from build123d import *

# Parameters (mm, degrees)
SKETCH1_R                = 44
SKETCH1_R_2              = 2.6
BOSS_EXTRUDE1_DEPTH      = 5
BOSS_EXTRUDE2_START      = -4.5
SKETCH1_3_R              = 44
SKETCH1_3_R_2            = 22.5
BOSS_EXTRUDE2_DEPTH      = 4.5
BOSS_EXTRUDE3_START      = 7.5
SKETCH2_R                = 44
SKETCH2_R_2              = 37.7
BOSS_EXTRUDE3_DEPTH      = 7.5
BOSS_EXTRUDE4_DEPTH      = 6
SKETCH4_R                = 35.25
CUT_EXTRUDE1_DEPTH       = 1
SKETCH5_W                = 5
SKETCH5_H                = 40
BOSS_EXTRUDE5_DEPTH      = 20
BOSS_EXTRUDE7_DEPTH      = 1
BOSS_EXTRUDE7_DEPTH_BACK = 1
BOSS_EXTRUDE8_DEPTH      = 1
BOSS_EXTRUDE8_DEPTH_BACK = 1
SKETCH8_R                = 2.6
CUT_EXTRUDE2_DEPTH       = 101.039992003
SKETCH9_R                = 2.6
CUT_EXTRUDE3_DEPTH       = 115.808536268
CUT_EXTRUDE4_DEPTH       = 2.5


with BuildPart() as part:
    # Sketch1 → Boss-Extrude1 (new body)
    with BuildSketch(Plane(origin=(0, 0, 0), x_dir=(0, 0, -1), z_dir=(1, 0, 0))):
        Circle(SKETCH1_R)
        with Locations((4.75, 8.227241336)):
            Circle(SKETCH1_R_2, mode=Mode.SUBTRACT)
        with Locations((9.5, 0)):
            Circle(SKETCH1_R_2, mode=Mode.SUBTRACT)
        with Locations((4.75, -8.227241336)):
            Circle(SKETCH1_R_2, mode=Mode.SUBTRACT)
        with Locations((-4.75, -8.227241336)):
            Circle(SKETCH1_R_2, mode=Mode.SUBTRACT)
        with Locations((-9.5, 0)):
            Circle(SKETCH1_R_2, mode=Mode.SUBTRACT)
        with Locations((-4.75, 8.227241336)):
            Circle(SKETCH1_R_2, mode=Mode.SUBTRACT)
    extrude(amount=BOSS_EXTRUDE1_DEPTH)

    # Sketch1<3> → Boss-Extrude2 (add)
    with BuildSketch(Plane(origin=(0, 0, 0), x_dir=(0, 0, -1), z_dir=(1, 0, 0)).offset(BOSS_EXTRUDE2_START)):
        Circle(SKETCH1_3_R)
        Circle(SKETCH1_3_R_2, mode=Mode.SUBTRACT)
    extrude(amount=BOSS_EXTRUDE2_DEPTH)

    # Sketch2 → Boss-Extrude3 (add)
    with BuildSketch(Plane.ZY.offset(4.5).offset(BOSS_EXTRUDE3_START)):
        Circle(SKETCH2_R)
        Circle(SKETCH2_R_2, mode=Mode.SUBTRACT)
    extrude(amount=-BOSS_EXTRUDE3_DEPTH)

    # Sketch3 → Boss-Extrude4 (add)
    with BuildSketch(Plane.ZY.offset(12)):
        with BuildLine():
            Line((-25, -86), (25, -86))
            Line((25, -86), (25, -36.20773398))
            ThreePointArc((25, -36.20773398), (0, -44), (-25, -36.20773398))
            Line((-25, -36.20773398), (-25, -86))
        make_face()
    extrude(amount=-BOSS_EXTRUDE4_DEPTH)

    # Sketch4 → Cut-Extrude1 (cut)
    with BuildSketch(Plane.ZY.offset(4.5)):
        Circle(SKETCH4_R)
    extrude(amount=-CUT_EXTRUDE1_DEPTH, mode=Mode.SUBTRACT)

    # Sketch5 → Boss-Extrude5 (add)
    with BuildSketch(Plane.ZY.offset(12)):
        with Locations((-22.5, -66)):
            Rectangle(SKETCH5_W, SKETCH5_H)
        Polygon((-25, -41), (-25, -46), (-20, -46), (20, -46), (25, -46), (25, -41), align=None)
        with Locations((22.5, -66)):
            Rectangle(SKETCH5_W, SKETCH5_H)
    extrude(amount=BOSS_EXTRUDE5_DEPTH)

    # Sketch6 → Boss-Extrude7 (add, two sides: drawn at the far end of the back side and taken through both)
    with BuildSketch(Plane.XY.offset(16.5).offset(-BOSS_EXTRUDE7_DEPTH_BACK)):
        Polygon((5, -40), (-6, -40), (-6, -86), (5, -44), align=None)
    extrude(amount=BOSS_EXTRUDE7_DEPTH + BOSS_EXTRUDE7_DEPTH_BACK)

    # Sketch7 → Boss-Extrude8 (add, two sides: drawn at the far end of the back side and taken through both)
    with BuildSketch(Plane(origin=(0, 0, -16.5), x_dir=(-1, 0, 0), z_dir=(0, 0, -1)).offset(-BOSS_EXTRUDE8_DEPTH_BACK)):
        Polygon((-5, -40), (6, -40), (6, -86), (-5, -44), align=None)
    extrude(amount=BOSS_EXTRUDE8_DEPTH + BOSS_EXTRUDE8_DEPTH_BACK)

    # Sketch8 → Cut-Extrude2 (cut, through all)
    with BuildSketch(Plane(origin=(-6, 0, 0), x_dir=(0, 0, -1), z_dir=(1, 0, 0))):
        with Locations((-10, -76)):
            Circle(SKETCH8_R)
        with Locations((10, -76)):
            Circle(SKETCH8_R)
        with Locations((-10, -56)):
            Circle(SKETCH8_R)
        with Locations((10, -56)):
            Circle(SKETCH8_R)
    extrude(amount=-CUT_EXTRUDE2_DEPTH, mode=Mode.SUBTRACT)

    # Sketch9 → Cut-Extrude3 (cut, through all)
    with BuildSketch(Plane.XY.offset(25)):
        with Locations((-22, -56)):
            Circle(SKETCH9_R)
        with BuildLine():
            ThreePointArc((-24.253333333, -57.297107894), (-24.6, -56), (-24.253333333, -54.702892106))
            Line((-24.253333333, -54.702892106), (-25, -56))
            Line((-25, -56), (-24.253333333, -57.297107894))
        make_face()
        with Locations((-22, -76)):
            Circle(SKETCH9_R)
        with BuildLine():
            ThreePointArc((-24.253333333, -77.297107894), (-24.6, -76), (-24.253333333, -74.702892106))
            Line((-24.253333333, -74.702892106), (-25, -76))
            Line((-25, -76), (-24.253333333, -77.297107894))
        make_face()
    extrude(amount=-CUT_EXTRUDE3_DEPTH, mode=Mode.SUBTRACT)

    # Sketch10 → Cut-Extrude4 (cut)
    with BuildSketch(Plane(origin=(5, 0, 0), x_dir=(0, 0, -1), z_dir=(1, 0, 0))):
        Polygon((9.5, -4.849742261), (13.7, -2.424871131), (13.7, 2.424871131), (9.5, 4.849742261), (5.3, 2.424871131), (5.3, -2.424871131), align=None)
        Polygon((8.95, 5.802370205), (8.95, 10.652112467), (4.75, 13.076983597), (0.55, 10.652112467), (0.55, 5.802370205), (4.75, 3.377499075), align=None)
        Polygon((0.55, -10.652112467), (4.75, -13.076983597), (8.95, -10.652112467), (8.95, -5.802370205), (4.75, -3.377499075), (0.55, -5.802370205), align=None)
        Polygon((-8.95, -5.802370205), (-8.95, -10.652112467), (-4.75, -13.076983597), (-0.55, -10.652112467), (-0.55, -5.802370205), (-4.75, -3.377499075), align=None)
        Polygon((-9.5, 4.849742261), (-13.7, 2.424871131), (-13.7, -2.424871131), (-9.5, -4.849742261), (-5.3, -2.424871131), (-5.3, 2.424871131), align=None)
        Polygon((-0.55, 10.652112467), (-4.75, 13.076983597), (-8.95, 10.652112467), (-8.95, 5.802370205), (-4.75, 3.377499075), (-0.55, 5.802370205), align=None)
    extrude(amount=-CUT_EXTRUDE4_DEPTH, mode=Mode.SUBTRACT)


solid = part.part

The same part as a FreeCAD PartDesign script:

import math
import FreeCAD as App
import Part
import Sketcher

V = App.Vector
Q = App.Units.Quantity

doc = App.newDocument("Part")
params = doc.addObject("Spreadsheet::Sheet", "Params")
for row, (alias, value) in enumerate([
    ("sketch1_diameter", "88 mm"),
    ("sketch1_diameter2", "5.2 mm"),
    ("pad1_length", "5 mm"),
    ("sketch2_diameter", "88 mm"),
    ("sketch2_diameter2", "45 mm"),
    ("pad2_length", "4.5 mm"),
    ("sketch3_diameter", "88 mm"),
    ("sketch3_diameter2", "75.4 mm"),
    ("pad3_length", "7.5 mm"),
    ("sketch4_radius", "44 mm"),
    ("sketch4_height", "50 mm"),
    ("pad4_length", "6 mm"),
    ("sketch5_diameter", "70.5 mm"),
    ("pocket1_length", "1 mm"),
    ("sketch6_width", "40 mm"),
    ("sketch6_width2", "45 mm"),
    ("sketch6_height", "5 mm"),
    ("pad5_length", "20 mm"),
    ("sketch7_width", "11 mm"),
    ("sketch7_height", "46 mm"),
    ("sketch7_height2", "4 mm"),
    ("pad6_length", "1 mm"),
    ("pad6_length2", "1 mm"),
    ("sketch8_width", "11 mm"),
    ("sketch8_height", "4 mm"),
    ("sketch8_height2", "46 mm"),
    ("pad7_length", "1 mm"),
    ("pad7_length2", "1 mm"),
    ("sketch9_diameter", "5.2 mm"),
    ("sketch10_radius", "2.6 mm"),
    ("pocket4_length", "2.5 mm"),
], start=1):
    params.set(f"A{row}", alias)
    params.set(f"B{row}", "=" + value)
    params.setAlias(f"B{row}", alias)

body = doc.addObject("PartDesign::Body", "Body")

sketch1 = body.newObject("Sketcher::SketchObject", "Sketch")
sketch1.AttachmentSupport = (doc.getObject("YZ_Plane"), [""])
sketch1.MapMode = "FlatFace"
sketch1.addGeometry(Part.Circle(V(0, 0, 0), V(0, 0, 1), 44), False)
sketch1.addGeometry(Part.Circle(V(-8.2, 4.8, 0), V(0, 0, 1), 2.6), False)
sketch1.addGeometry(Part.Circle(V(-8.2, -4.8, 0), V(0, 0, 1), 2.6), False)
sketch1.addGeometry(Part.Circle(V(0, 9.5, 0), V(0, 0, 1), 2.6), False)
sketch1.addGeometry(Part.Circle(V(8.2, 4.8, 0), V(0, 0, 1), 2.6), False)
sketch1.addGeometry(Part.Circle(V(0, -9.5, 0), V(0, 0, 1), 2.6), False)
sketch1.addGeometry(Part.Circle(V(8.2, -4.8, 0), V(0, 0, 1), 2.6), False)
sketch1.addConstraint(Sketcher.Constraint("Coincident", 0, 3, -1, 1))
sketch1.addConstraint(Sketcher.Constraint("Equal", 1, 2))
sketch1.addConstraint(Sketcher.Constraint("Equal", 2, 3))
sketch1.addConstraint(Sketcher.Constraint("Equal", 3, 4))
sketch1.addConstraint(Sketcher.Constraint("Equal", 4, 5))
sketch1.addConstraint(Sketcher.Constraint("Equal", 5, 6))
sketch1.addConstraint(Sketcher.Constraint("Symmetric", 2, 3, 4, 3, -1, 1))
sketch1.addConstraint(Sketcher.Constraint("Symmetric", 3, 3, 5, 3, -1, 1))
sketch1.addConstraint(Sketcher.Constraint("Symmetric", 1, 3, 6, 3, -1, 1))
sketch1.addConstraint(Sketcher.Constraint("Symmetric", 1, 3, 4, 3, -2))
sketch1.addConstraint(Sketcher.Constraint("PointOnObject", 3, 3, -2))
sketch1.addConstraint(Sketcher.Constraint("Diameter", 0, 88.0))
sketch1.addConstraint(Sketcher.Constraint("Diameter", 1, 5.2))
sketch1.addConstraint(Sketcher.Constraint("DistanceY", 5, 3, 3, 3, 19.0))
sketch1.addConstraint(Sketcher.Constraint("DistanceY", 2, 3, 1, 3, 9.5))
sketch1.addConstraint(Sketcher.Constraint("DistanceX", 1, 3, -1, 1, 8.227241))
sketch1.setExpression("Constraints[11]", "Params.sketch1_diameter")
sketch1.setExpression("Constraints[12]", "Params.sketch1_diameter2")
pad1 = body.newObject("PartDesign::Pad", "Pad")
pad1.Profile = sketch1
pad1.setExpression("Length", "Params.pad1_length")

sketch2 = body.newObject("Sketcher::SketchObject", "Sketch001")
sketch2.AttachmentSupport = (doc.getObject("YZ_Plane"), [""])
sketch2.MapMode = "FlatFace"
sketch2.AttachmentOffset = App.Placement(V(0, 0, -4.5), App.Rotation())
sketch2.addGeometry(Part.Circle(V(0, 0, 0), V(0, 0, 1), 44), False)
sketch2.addGeometry(Part.Circle(V(0, 0, 0), V(0, 0, 1), 22), False)
sketch2.addConstraint(Sketcher.Constraint("Coincident", 0, 3, -1, 1))
sketch2.addConstraint(Sketcher.Constraint("Coincident", 1, 3, -1, 1))
sketch2.addConstraint(Sketcher.Constraint("Diameter", 0, 88.0))
sketch2.addConstraint(Sketcher.Constraint("Diameter", 1, 45.0))
sketch2.setExpression("Constraints[2]", "Params.sketch2_diameter")
sketch2.setExpression("Constraints[3]", "Params.sketch2_diameter2")
pad2 = body.newObject("PartDesign::Pad", "Pad001")
pad2.Profile = sketch2
pad2.setExpression("Length", "Params.pad2_length")

sketch3 = body.newObject("Sketcher::SketchObject", "Sketch002")
sketch3.AttachmentSupport = (doc.getObject("YZ_Plane"), [""])
sketch3.MapMode = "FlatFace"
sketch3.AttachmentOffset = App.Placement(V(0, 0, -12), App.Rotation())
sketch3.addGeometry(Part.Circle(V(0, 0, 0), V(0, 0, 1), 44), False)
sketch3.addGeometry(Part.Circle(V(0, 0, 0), V(0, 0, 1), 38), False)
sketch3.addConstraint(Sketcher.Constraint("Coincident", 0, 3, -1, 1))
sketch3.addConstraint(Sketcher.Constraint("Coincident", 1, 3, -1, 1))
sketch3.addConstraint(Sketcher.Constraint("Diameter", 0, 88.0))
sketch3.addConstraint(Sketcher.Constraint("Diameter", 1, 75.4))
sketch3.setExpression("Constraints[2]", "Params.sketch3_diameter")
sketch3.setExpression("Constraints[3]", "Params.sketch3_diameter2")
pad3 = body.newObject("PartDesign::Pad", "Pad002")
pad3.Profile = sketch3
pad3.setExpression("Length", "Params.pad3_length")

sketch4 = body.newObject("Sketcher::SketchObject", "Sketch003")
sketch4.AttachmentSupport = (doc.getObject("YZ_Plane"), [""])
sketch4.MapMode = "FlatFace"
sketch4.AttachmentOffset = App.Placement(V(0, 0, -12), App.Rotation())
sketch4.addGeometry(Part.LineSegment(V(-86, -25, 0), V(-86, 25, 0)), False)
sketch4.addGeometry(Part.LineSegment(V(-86, 25, 0), V(-36, 25, 0)), False)
sketch4.addGeometry(Part.ArcOfCircle(Part.Circle(V(0, 0, 0), V(0, 0, 1), 44), math.radians(145), math.radians(215)), False)
sketch4.addGeometry(Part.LineSegment(V(-36, -25, 0), V(-86, -25, 0)), False)
sketch4.addConstraint(Sketcher.Constraint("Coincident", 0, 2, 1, 1))
sketch4.addConstraint(Sketcher.Constraint("Coincident", 1, 2, 2, 1))
sketch4.addConstraint(Sketcher.Constraint("Coincident", 2, 2, 3, 1))
sketch4.addConstraint(Sketcher.Constraint("Coincident", 3, 2, 0, 1))
sketch4.addConstraint(Sketcher.Constraint("Vertical", 0))
sketch4.addConstraint(Sketcher.Constraint("Horizontal", 1))
sketch4.addConstraint(Sketcher.Constraint("Horizontal", 3))
sketch4.addConstraint(Sketcher.Constraint("Coincident", 2, 3, -1, 1))
sketch4.addConstraint(Sketcher.Constraint("Vertical", 1, 2, 2, 2))
sketch4.addConstraint(Sketcher.Constraint("Radius", 2, 44.0))
sketch4.addConstraint(Sketcher.Constraint("DistanceY", 0, 1, 0, 2, 50.0))
sketch4.addConstraint(Sketcher.Constraint("DistanceX", 0, 2, -1, 1, 86.0))
sketch4.setExpression("Constraints[9]", "Params.sketch4_radius")
sketch4.setExpression("Constraints[10]", "Params.sketch4_height")
pad4 = body.newObject("PartDesign::Pad", "Pad003")
pad4.Profile = sketch4
pad4.setExpression("Length", "Params.pad4_length")

sketch5 = body.newObject("Sketcher::SketchObject", "Sketch004")
sketch5.AttachmentSupport = (doc.getObject("YZ_Plane"), [""])
sketch5.MapMode = "FlatFace"
sketch5.AttachmentOffset = App.Placement(V(0, 0, -4.5), App.Rotation())
sketch5.addGeometry(Part.Circle(V(0, 0, 0), V(0, 0, 1), 35), False)
sketch5.addConstraint(Sketcher.Constraint("Coincident", 0, 3, -1, 1))
sketch5.addConstraint(Sketcher.Constraint("Diameter", 0, 70.5))
sketch5.setExpression("Constraints[1]", "Params.sketch5_diameter")
pocket1 = body.newObject("PartDesign::Pocket", "Pocket")
pocket1.Profile = sketch5
pocket1.setExpression("Length", "Params.pocket1_length")
pocket1.Reversed = True

sketch6 = body.newObject("Sketcher::SketchObject", "Sketch005")
sketch6.AttachmentSupport = (doc.getObject("YZ_Plane"), [""])
sketch6.MapMode = "FlatFace"
sketch6.AttachmentOffset = App.Placement(V(0, 0, -12), App.Rotation())
sketch6.addGeometry(Part.LineSegment(V(-86, -25, 0), V(-86, -20, 0)), False)
sketch6.addGeometry(Part.LineSegment(V(-86, -20, 0), V(-46, -20, 0)), False)
sketch6.addGeometry(Part.LineSegment(V(-46, -20, 0), V(-46, 20, 0)), False)
sketch6.addGeometry(Part.LineSegment(V(-46, 20, 0), V(-86, 20, 0)), False)
sketch6.addGeometry(Part.LineSegment(V(-86, 20, 0), V(-86, 25, 0)), False)
sketch6.addGeometry(Part.LineSegment(V(-86, 25, 0), V(-41, 25, 0)), False)
sketch6.addGeometry(Part.LineSegment(V(-41, 25, 0), V(-41, -25, 0)), False)
sketch6.addGeometry(Part.LineSegment(V(-41, -25, 0), V(-86, -25, 0)), False)
sketch6.addConstraint(Sketcher.Constraint("Coincident", 0, 2, 1, 1))
sketch6.addConstraint(Sketcher.Constraint("Coincident", 1, 2, 2, 1))
sketch6.addConstraint(Sketcher.Constraint("Coincident", 2, 2, 3, 1))
sketch6.addConstraint(Sketcher.Constraint("Coincident", 3, 2, 4, 1))
sketch6.addConstraint(Sketcher.Constraint("Coincident", 4, 2, 5, 1))
sketch6.addConstraint(Sketcher.Constraint("Coincident", 5, 2, 6, 1))
sketch6.addConstraint(Sketcher.Constraint("Coincident", 6, 2, 7, 1))
sketch6.addConstraint(Sketcher.Constraint("Coincident", 7, 2, 0, 1))
sketch6.addConstraint(Sketcher.Constraint("Vertical", 0))
sketch6.addConstraint(Sketcher.Constraint("Horizontal", 1))
sketch6.addConstraint(Sketcher.Constraint("Vertical", 2))
sketch6.addConstraint(Sketcher.Constraint("Horizontal", 3))
sketch6.addConstraint(Sketcher.Constraint("Vertical", 4))
sketch6.addConstraint(Sketcher.Constraint("Horizontal", 5))
sketch6.addConstraint(Sketcher.Constraint("Vertical", 6))
sketch6.addConstraint(Sketcher.Constraint("Horizontal", 7))
sketch6.addConstraint(Sketcher.Constraint("Symmetric", 0, 2, 3, 2, -1))
sketch6.addConstraint(Sketcher.Constraint("Equal", 3, 2))
sketch6.addConstraint(Sketcher.Constraint("Equal", 0, 4))
sketch6.addConstraint(Sketcher.Constraint("DistanceX", 1, 1, 1, 2, 40.0))
sketch6.addConstraint(Sketcher.Constraint("DistanceX", 5, 1, 5, 2, 45.0))
sketch6.addConstraint(Sketcher.Constraint("DistanceY", 0, 1, 0, 2, 5.0))
sketch6.addConstraint(Sketcher.Constraint("DistanceX", 0, 2, -1, 1, 86.0))
sketch6.setExpression("Constraints[19]", "Params.sketch6_width")
sketch6.setExpression("Constraints[20]", "Params.sketch6_width2")
sketch6.setExpression("Constraints[21]", "Params.sketch6_height")
pad5 = body.newObject("PartDesign::Pad", "Pad004")
pad5.Profile = sketch6
pad5.setExpression("Length", "Params.pad5_length")
pad5.Reversed = True

sketch7 = body.newObject("Sketcher::SketchObject", "Sketch006")
sketch7.AttachmentSupport = (doc.getObject("XY_Plane"), [""])
sketch7.MapMode = "FlatFace"
sketch7.AttachmentOffset = App.Placement(V(0, 0, 16.5), App.Rotation())
sketch7.addGeometry(Part.LineSegment(V(5, -40, 0), V(-6, -40, 0)), False)
sketch7.addGeometry(Part.LineSegment(V(-6, -40, 0), V(-6, -86, 0)), False)
sketch7.addGeometry(Part.LineSegment(V(-6, -86, 0), V(5, -44, 0)), False)
sketch7.addGeometry(Part.LineSegment(V(5, -44, 0), V(5, -40, 0)), False)
sketch7.addConstraint(Sketcher.Constraint("Coincident", 0, 2, 1, 1))
sketch7.addConstraint(Sketcher.Constraint("Coincident", 1, 2, 2, 1))
sketch7.addConstraint(Sketcher.Constraint("Coincident", 2, 2, 3, 1))
sketch7.addConstraint(Sketcher.Constraint("Coincident", 3, 2, 0, 1))
sketch7.addConstraint(Sketcher.Constraint("Horizontal", 0))
sketch7.addConstraint(Sketcher.Constraint("Vertical", 1))
sketch7.addConstraint(Sketcher.Constraint("Vertical", 3))
sketch7.addConstraint(Sketcher.Constraint("DistanceX", 0, 2, 0, 1, 11.0))
sketch7.addConstraint(Sketcher.Constraint("DistanceY", 1, 2, 1, 1, 46.0))
sketch7.addConstraint(Sketcher.Constraint("DistanceY", 3, 1, 3, 2, 4.0))
sketch7.addConstraint(Sketcher.Constraint("DistanceX", 0, 2, -1, 1, 6.0))
sketch7.addConstraint(Sketcher.Constraint("DistanceY", 0, 2, -1, 1, 40.0))
sketch7.setExpression("Constraints[7]", "Params.sketch7_width")
sketch7.setExpression("Constraints[8]", "Params.sketch7_height")
sketch7.setExpression("Constraints[9]", "Params.sketch7_height2")
pad6 = body.newObject("PartDesign::Pad", "Pad005")
pad6.Profile = sketch7
pad6.Type = "TwoLengths"
pad6.setExpression("Length", "Params.pad6_length")
pad6.setExpression("Length2", "Params.pad6_length2")

sketch8 = body.newObject("Sketcher::SketchObject", "Sketch007")
sketch8.AttachmentSupport = (doc.getObject("XY_Plane"), [""])
sketch8.MapMode = "FlatFace"
sketch8.AttachmentOffset = App.Placement(V(0, 0, -16.5), App.Rotation())
sketch8.addGeometry(Part.LineSegment(V(-6, -40, 0), V(5, -40, 0)), False)
sketch8.addGeometry(Part.LineSegment(V(5, -40, 0), V(5, -44, 0)), False)
sketch8.addGeometry(Part.LineSegment(V(5, -44, 0), V(-6, -86, 0)), False)
sketch8.addGeometry(Part.LineSegment(V(-6, -86, 0), V(-6, -40, 0)), False)
sketch8.addConstraint(Sketcher.Constraint("Coincident", 0, 2, 1, 1))
sketch8.addConstraint(Sketcher.Constraint("Coincident", 1, 2, 2, 1))
sketch8.addConstraint(Sketcher.Constraint("Coincident", 2, 2, 3, 1))
sketch8.addConstraint(Sketcher.Constraint("Coincident", 3, 2, 0, 1))
sketch8.addConstraint(Sketcher.Constraint("Horizontal", 0))
sketch8.addConstraint(Sketcher.Constraint("Vertical", 1))
sketch8.addConstraint(Sketcher.Constraint("Vertical", 3))
sketch8.addConstraint(Sketcher.Constraint("DistanceX", 0, 1, 0, 2, 11.0))
sketch8.addConstraint(Sketcher.Constraint("DistanceY", 1, 2, 1, 1, 4.0))
sketch8.addConstraint(Sketcher.Constraint("DistanceY", 3, 1, 3, 2, 46.0))
sketch8.addConstraint(Sketcher.Constraint("DistanceX", -1, 1, 0, 2, 5.0))
sketch8.addConstraint(Sketcher.Constraint("DistanceY", 0, 2, -1, 1, 40.0))
sketch8.setExpression("Constraints[7]", "Params.sketch8_width")
sketch8.setExpression("Constraints[8]", "Params.sketch8_height")
sketch8.setExpression("Constraints[9]", "Params.sketch8_height2")
pad7 = body.newObject("PartDesign::Pad", "Pad006")
pad7.Profile = sketch8
pad7.Type = "TwoLengths"
pad7.setExpression("Length", "Params.pad7_length")
pad7.setExpression("Length2", "Params.pad7_length2")
pad7.Reversed = True

sketch9 = body.newObject("Sketcher::SketchObject", "Sketch008")
sketch9.AttachmentSupport = (doc.getObject("YZ_Plane"), [""])
sketch9.MapMode = "FlatFace"
sketch9.AttachmentOffset = App.Placement(V(0, 0, -6), App.Rotation())
sketch9.addGeometry(Part.Circle(V(-76, 10, 0), V(0, 0, 1), 2.6), False)
sketch9.addGeometry(Part.Circle(V(-76, -10, 0), V(0, 0, 1), 2.6), False)
sketch9.addGeometry(Part.Circle(V(-56, 10, 0), V(0, 0, 1), 2.6), False)
sketch9.addGeometry(Part.Circle(V(-56, -10, 0), V(0, 0, 1), 2.6), False)
sketch9.addConstraint(Sketcher.Constraint("Equal", 0, 1))
sketch9.addConstraint(Sketcher.Constraint("Equal", 1, 2))
sketch9.addConstraint(Sketcher.Constraint("Equal", 2, 3))
sketch9.addConstraint(Sketcher.Constraint("Symmetric", 0, 3, 1, 3, -1))
sketch9.addConstraint(Sketcher.Constraint("Symmetric", 2, 3, 3, 3, -1))
sketch9.addConstraint(Sketcher.Constraint("Horizontal", 0, 3, 2, 3))
sketch9.addConstraint(Sketcher.Constraint("Diameter", 0, 5.2))
sketch9.addConstraint(Sketcher.Constraint("DistanceX", 0, 3, -1, 1, 76.0))
sketch9.addConstraint(Sketcher.Constraint("DistanceY", -1, 1, 0, 3, 10.0))
sketch9.addConstraint(Sketcher.Constraint("DistanceX", 2, 3, -1, 1, 56.0))
sketch9.setExpression("Constraints[6]", "Params.sketch9_diameter")
pocket2 = body.newObject("PartDesign::Pocket", "Pocket001")
pocket2.Profile = sketch9
pocket2.Type = "ThroughAll"

sketch10 = body.newObject("Sketcher::SketchObject", "Sketch009")
sketch10.AttachmentSupport = (doc.getObject("XY_Plane"), [""])
sketch10.MapMode = "FlatFace"
sketch10.AttachmentOffset = App.Placement(V(0, 0, 25), App.Rotation())
sketch10.addGeometry(Part.LineSegment(V(-24.3, -54.7, 0), V(-25, -56, 0)), False)
sketch10.addGeometry(Part.LineSegment(V(-25, -56, 0), V(-24.3, -57.3, 0)), False)
sketch10.addGeometry(Part.ArcOfCircle(Part.Circle(V(-22, -56, 0), V(0, 0, 1), 2.6), math.radians(-150), math.radians(150)), False)
sketch10.addGeometry(Part.LineSegment(V(-24.3, -74.7, 0), V(-25, -76, 0)), False)
sketch10.addGeometry(Part.LineSegment(V(-25, -76, 0), V(-24.3, -77.3, 0)), False)
sketch10.addGeometry(Part.ArcOfCircle(Part.Circle(V(-22, -76, 0), V(0, 0, 1), 2.6), math.radians(-150), math.radians(150)), False)
sketch10.addConstraint(Sketcher.Constraint("Coincident", 0, 2, 1, 1))
sketch10.addConstraint(Sketcher.Constraint("Tangent", 1, 2, 2, 1))
sketch10.addConstraint(Sketcher.Constraint("Tangent", 2, 2, 0, 1))
sketch10.addConstraint(Sketcher.Constraint("Coincident", 3, 2, 4, 1))
sketch10.addConstraint(Sketcher.Constraint("Tangent", 4, 2, 5, 1))
sketch10.addConstraint(Sketcher.Constraint("Tangent", 5, 2, 3, 1))
sketch10.addConstraint(Sketcher.Constraint("Equal", 2, 5))
sketch10.addConstraint(Sketcher.Constraint("Parallel", 0, 3))
sketch10.addConstraint(Sketcher.Constraint("Parallel", 1, 4))
sketch10.addConstraint(Sketcher.Constraint("Horizontal", 2, 3, 0, 2))
sketch10.addConstraint(Sketcher.Constraint("Vertical", 2, 3, 5, 3))
sketch10.addConstraint(Sketcher.Constraint("Radius", 2, 2.6))
sketch10.addConstraint(Sketcher.Constraint("DistanceX", 2, 3, -1, 1, 22.0))
sketch10.addConstraint(Sketcher.Constraint("DistanceY", 2, 3, -1, 1, 56.0))
sketch10.addConstraint(Sketcher.Constraint("DistanceY", 5, 3, -1, 1, 76.0))
sketch10.addConstraint(Sketcher.Constraint("DistanceX", 0, 2, -1, 1, 25.0))
sketch10.setExpression("Constraints[11]", "Params.sketch10_radius")
pocket3 = body.newObject("PartDesign::Pocket", "Pocket002")
pocket3.Profile = sketch10
pocket3.Type = "ThroughAll"

sketch11 = body.newObject("Sketcher::SketchObject", "Sketch010")
sketch11.AttachmentSupport = (doc.getObject("YZ_Plane"), [""])
sketch11.MapMode = "FlatFace"
sketch11.AttachmentOffset = App.Placement(V(0, 0, 5), App.Rotation())
sketch11.addGeometry(Part.LineSegment(V(-4.8, -9.5, 0), V(-2.4, -13.7, 0)), False)
sketch11.addGeometry(Part.LineSegment(V(-2.4, -13.7, 0), V(2.4, -13.7, 0)), False)
sketch11.addGeometry(Part.LineSegment(V(2.4, -13.7, 0), V(4.8, -9.5, 0)), False)
sketch11.addGeometry(Part.LineSegment(V(4.8, -9.5, 0), V(2.4, -5.3, 0)), False)
sketch11.addGeometry(Part.LineSegment(V(2.4, -5.3, 0), V(-2.4, -5.3, 0)), False)
sketch11.addGeometry(Part.LineSegment(V(-2.4, -5.3, 0), V(-4.8, -9.5, 0)), False)
sketch11.addGeometry(Part.LineSegment(V(5.8, -8.9, 0), V(10.7, -8.9, 0)), False)
sketch11.addGeometry(Part.LineSegment(V(10.7, -8.9, 0), V(13.1, -4.8, 0)), False)
sketch11.addGeometry(Part.LineSegment(V(13.1, -4.8, 0), V(10.7, -0.6, 0)), False)
sketch11.addGeometry(Part.LineSegment(V(10.7, -0.6, 0), V(5.8, -0.6, 0)), False)
sketch11.addGeometry(Part.LineSegment(V(5.8, -0.6, 0), V(3.4, -4.8, 0)), False)
sketch11.addGeometry(Part.LineSegment(V(3.4, -4.8, 0), V(5.8, -8.9, 0)), False)
sketch11.addGeometry(Part.LineSegment(V(-10.7, -0.6, 0), V(-13.1, -4.8, 0)), False)
sketch11.addGeometry(Part.LineSegment(V(-13.1, -4.8, 0), V(-10.7, -8.9, 0)), False)
sketch11.addGeometry(Part.LineSegment(V(-10.7, -8.9, 0), V(-5.8, -8.9, 0)), False)
sketch11.addGeometry(Part.LineSegment(V(-5.8, -8.9, 0), V(-3.4, -4.8, 0)), False)
sketch11.addGeometry(Part.LineSegment(V(-3.4, -4.8, 0), V(-5.8, -0.6, 0)), False)
sketch11.addGeometry(Part.LineSegment(V(-5.8, -0.6, 0), V(-10.7, -0.6, 0)), False)
sketch11.addGeometry(Part.LineSegment(V(-5.8, 8.9, 0), V(-10.7, 8.9, 0)), False)
sketch11.addGeometry(Part.LineSegment(V(-10.7, 8.9, 0), V(-13.1, 4.8, 0)), False)
sketch11.addGeometry(Part.LineSegment(V(-13.1, 4.8, 0), V(-10.7, 0.6, 0)), False)
sketch11.addGeometry(Part.LineSegment(V(-10.7, 0.6, 0), V(-5.8, 0.6, 0)), False)
sketch11.addGeometry(Part.LineSegment(V(-5.8, 0.6, 0), V(-3.4, 4.8, 0)), False)
sketch11.addGeometry(Part.LineSegment(V(-3.4, 4.8, 0), V(-5.8, 8.9, 0)), False)
sketch11.addGeometry(Part.LineSegment(V(4.8, 9.5, 0), V(2.4, 13.7, 0)), False)
sketch11.addGeometry(Part.LineSegment(V(2.4, 13.7, 0), V(-2.4, 13.7, 0)), False)
sketch11.addGeometry(Part.LineSegment(V(-2.4, 13.7, 0), V(-4.8, 9.5, 0)), False)
sketch11.addGeometry(Part.LineSegment(V(-4.8, 9.5, 0), V(-2.4, 5.3, 0)), False)
sketch11.addGeometry(Part.LineSegment(V(-2.4, 5.3, 0), V(2.4, 5.3, 0)), False)
sketch11.addGeometry(Part.LineSegment(V(2.4, 5.3, 0), V(4.8, 9.5, 0)), False)
sketch11.addGeometry(Part.LineSegment(V(10.7, 0.6, 0), V(13.1, 4.8, 0)), False)
sketch11.addGeometry(Part.LineSegment(V(13.1, 4.8, 0), V(10.7, 8.9, 0)), False)
sketch11.addGeometry(Part.LineSegment(V(10.7, 8.9, 0), V(5.8, 8.9, 0)), False)
sketch11.addGeometry(Part.LineSegment(V(5.8, 8.9, 0), V(3.4, 4.8, 0)), False)
sketch11.addGeometry(Part.LineSegment(V(3.4, 4.8, 0), V(5.8, 0.6, 0)), False)
sketch11.addGeometry(Part.LineSegment(V(5.8, 0.6, 0), V(10.7, 0.6, 0)), False)
sketch11.addConstraint(Sketcher.Constraint("Coincident", 0, 2, 1, 1))
sketch11.addConstraint(Sketcher.Constraint("Coincident", 1, 2, 2, 1))
sketch11.addConstraint(Sketcher.Constraint("Coincident", 2, 2, 3, 1))
sketch11.addConstraint(Sketcher.Constraint("Coincident", 3, 2, 4, 1))
sketch11.addConstraint(Sketcher.Constraint("Coincident", 4, 2, 5, 1))
sketch11.addConstraint(Sketcher.Constraint("Coincident", 5, 2, 0, 1))
sketch11.addConstraint(Sketcher.Constraint("Coincident", 6, 2, 7, 1))
sketch11.addConstraint(Sketcher.Constraint("Coincident", 7, 2, 8, 1))
sketch11.addConstraint(Sketcher.Constraint("Coincident", 8, 2, 9, 1))
sketch11.addConstraint(Sketcher.Constraint("Coincident", 9, 2, 10, 1))
sketch11.addConstraint(Sketcher.Constraint("Coincident", 10, 2, 11, 1))
sketch11.addConstraint(Sketcher.Constraint("Coincident", 11, 2, 6, 1))
sketch11.addConstraint(Sketcher.Constraint("Coincident", 12, 2, 13, 1))
sketch11.addConstraint(Sketcher.Constraint("Coincident", 13, 2, 14, 1))
sketch11.addConstraint(Sketcher.Constraint("Coincident", 14, 2, 15, 1))
sketch11.addConstraint(Sketcher.Constraint("Coincident", 15, 2, 16, 1))
sketch11.addConstraint(Sketcher.Constraint("Coincident", 16, 2, 17, 1))
sketch11.addConstraint(Sketcher.Constraint("Coincident", 17, 2, 12, 1))
sketch11.addConstraint(Sketcher.Constraint("Coincident", 18, 2, 19, 1))
sketch11.addConstraint(Sketcher.Constraint("Coincident", 19, 2, 20, 1))
sketch11.addConstraint(Sketcher.Constraint("Coincident", 20, 2, 21, 1))
sketch11.addConstraint(Sketcher.Constraint("Coincident", 21, 2, 22, 1))
sketch11.addConstraint(Sketcher.Constraint("Coincident", 22, 2, 23, 1))
sketch11.addConstraint(Sketcher.Constraint("Coincident", 23, 2, 18, 1))
sketch11.addConstraint(Sketcher.Constraint("Coincident", 24, 2, 25, 1))
sketch11.addConstraint(Sketcher.Constraint("Coincident", 25, 2, 26, 1))
sketch11.addConstraint(Sketcher.Constraint("Coincident", 26, 2, 27, 1))
sketch11.addConstraint(Sketcher.Constraint("Coincident", 27, 2, 28, 1))
sketch11.addConstraint(Sketcher.Constraint("Coincident", 28, 2, 29, 1))
sketch11.addConstraint(Sketcher.Constraint("Coincident", 29, 2, 24, 1))
sketch11.addConstraint(Sketcher.Constraint("Coincident", 30, 2, 31, 1))
sketch11.addConstraint(Sketcher.Constraint("Coincident", 31, 2, 32, 1))
sketch11.addConstraint(Sketcher.Constraint("Coincident", 32, 2, 33, 1))
sketch11.addConstraint(Sketcher.Constraint("Coincident", 33, 2, 34, 1))
sketch11.addConstraint(Sketcher.Constraint("Coincident", 34, 2, 35, 1))
sketch11.addConstraint(Sketcher.Constraint("Coincident", 35, 2, 30, 1))
sketch11.addConstraint(Sketcher.Constraint("Horizontal", 1))
sketch11.addConstraint(Sketcher.Constraint("Horizontal", 4))
sketch11.addConstraint(Sketcher.Constraint("Horizontal", 6))
sketch11.addConstraint(Sketcher.Constraint("Horizontal", 9))
sketch11.addConstraint(Sketcher.Constraint("Horizontal", 14))
sketch11.addConstraint(Sketcher.Constraint("Horizontal", 17))
sketch11.addConstraint(Sketcher.Constraint("Horizontal", 18))
sketch11.addConstraint(Sketcher.Constraint("Horizontal", 21))
sketch11.addConstraint(Sketcher.Constraint("Horizontal", 25))
sketch11.addConstraint(Sketcher.Constraint("Horizontal", 28))
sketch11.addConstraint(Sketcher.Constraint("Horizontal", 32))
sketch11.addConstraint(Sketcher.Constraint("Horizontal", 35))
sketch11.addConstraint(Sketcher.Constraint("Symmetric", 6, 2, 18, 2, -1, 1))
sketch11.addConstraint(Sketcher.Constraint("Symmetric", 7, 2, 19, 2, -1, 1))
sketch11.addConstraint(Sketcher.Constraint("Symmetric", 8, 2, 20, 2, -1, 1))
sketch11.addConstraint(Sketcher.Constraint("Symmetric", 10, 2, 22, 2, -1, 1))
sketch11.addConstraint(Sketcher.Constraint("Symmetric", 0, 2, 24, 2, -1, 1))
sketch11.addConstraint(Sketcher.Constraint("Symmetric", 2, 2, 26, 2, -1, 1))
sketch11.addConstraint(Sketcher.Constraint("Symmetric", 3, 2, 27, 2, -1, 1))
sketch11.addConstraint(Sketcher.Constraint("Symmetric", 5, 2, 29, 2, -1, 1))
sketch11.addConstraint(Sketcher.Constraint("Symmetric", 12, 2, 30, 2, -1, 1))
sketch11.addConstraint(Sketcher.Constraint("Symmetric", 13, 2, 31, 2, -1, 1))
sketch11.addConstraint(Sketcher.Constraint("Symmetric", 15, 2, 33, 2, -1, 1))
sketch11.addConstraint(Sketcher.Constraint("Symmetric", 16, 2, 34, 2, -1, 1))
sketch11.addConstraint(Sketcher.Constraint("Symmetric", 2, 2, 5, 2, -2))
sketch11.addConstraint(Sketcher.Constraint("Symmetric", 7, 2, 12, 2, -2))
sketch11.addConstraint(Sketcher.Constraint("Symmetric", 6, 2, 13, 2, -2))
sketch11.addConstraint(Sketcher.Constraint("Symmetric", 10, 2, 15, 2, -2))
sketch11.addConstraint(Sketcher.Constraint("Symmetric", 9, 2, 16, 2, -2))
sketch11.addConstraint(Sketcher.Constraint("Parallel", 0, 3))
sketch11.addConstraint(Sketcher.Constraint("Parallel", 2, 5))
sketch11.addConstraint(Sketcher.Constraint("Parallel", 5, 7))
sketch11.addConstraint(Sketcher.Constraint("Parallel", 3, 8))
sketch11.addConstraint(Sketcher.Constraint("Parallel", 7, 10))
sketch11.addConstraint(Sketcher.Constraint("Parallel", 8, 11))
sketch11.addConstraint(Sketcher.Constraint("Parallel", 10, 12))
sketch11.addConstraint(Sketcher.Constraint("Parallel", 11, 13))
sketch11.addConstraint(Sketcher.Constraint("Parallel", 12, 15))
sketch11.addConstraint(Sketcher.Constraint("Parallel", 19, 22))
sketch11.addConstraint(Sketcher.Constraint("Parallel", 20, 23))
sketch11.addConstraint(Sketcher.Constraint("Parallel", 22, 26))
sketch11.addConstraint(Sketcher.Constraint("Parallel", 26, 29))
sketch11.addConstraint(Sketcher.Constraint("Parallel", 29, 30))
sketch11.addConstraint(Sketcher.Constraint("Parallel", 30, 33))
sketch11.addConstraint(Sketcher.Constraint("Horizontal", 7, 2, 10, 2))
sketch11.addConstraint(Sketcher.Constraint("Vertical", 1, 2, 3, 2))
sketch11.addConstraint(Sketcher.Constraint("Vertical", 6, 2, 8, 2))
sketch11.addConstraint(Sketcher.Constraint("Equal", 4, 6))
sketch11.addConstraint(Sketcher.Constraint("Equal", 5, 7))
sketch11.addConstraint(Sketcher.Constraint("Angle", 0, Q("-60 deg")))
sketch11.addConstraint(Sketcher.Constraint("DistanceY", 0, 2, -1, 1, 13.7))
sketch11.addConstraint(Sketcher.Constraint("DistanceY", 2, 2, -1, 1, 9.5))
sketch11.addConstraint(Sketcher.Constraint("DistanceY", 17, 2, 18, 2, 9.5))
sketch11.addConstraint(Sketcher.Constraint("DistanceX", 15, 2, 10, 2, 6.754998))
sketch11.addConstraint(Sketcher.Constraint("DistanceX", 3, 2, 9, 2, 3.377499))
pocket4 = body.newObject("PartDesign::Pocket", "Pocket003")
pocket4.Profile = sketch11
pocket4.setExpression("Length", "Params.pocket4_length")

doc.recompute()
